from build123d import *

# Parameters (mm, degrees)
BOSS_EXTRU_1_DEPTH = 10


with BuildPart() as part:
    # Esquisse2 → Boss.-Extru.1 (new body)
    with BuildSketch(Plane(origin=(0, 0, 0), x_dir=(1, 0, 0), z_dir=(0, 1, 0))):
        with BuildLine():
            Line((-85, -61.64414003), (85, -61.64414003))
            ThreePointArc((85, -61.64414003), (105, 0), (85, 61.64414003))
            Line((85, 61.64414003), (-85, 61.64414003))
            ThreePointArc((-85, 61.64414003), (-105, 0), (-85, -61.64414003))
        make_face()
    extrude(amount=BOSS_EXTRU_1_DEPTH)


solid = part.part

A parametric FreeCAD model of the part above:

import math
import FreeCAD as App
import Part
import Sketcher

V = App.Vector

doc = App.newDocument("Part")
body = doc.addObject("PartDesign::Body", "Body")

# Sketch on XZ plane
sketch1 = body.newObject("Sketcher::SketchObject", "Sketch")
sketch1.AttachmentSupport = (doc.getObject("XZ_Plane"), [""])
sketch1.MapMode = "FlatFace"
sketch1.addGeometry(Part.LineSegment(V(-85, 62, 0), V(85, 62, 0)), False)
sketch1.addGeometry(Part.ArcOfCircle(Part.Circle(V(0, 0, 0), V(0, 0, 1), 105), math.radians(-36), math.radians(36)), False)
sketch1.addGeometry(Part.LineSegment(V(85, -62, 0), V(-85, -62, 0)), False)
sketch1.addGeometry(Part.ArcOfCircle(Part.Circle(V(0, 0, 0), V(0, 0, 1), 105), math.radians(144), math.radians(216)), False)
sketch1.addConstraint(Sketcher.Constraint("Coincident", 0, 2, 1, 2))
sketch1.addConstraint(Sketcher.Constraint("Coincident", 1, 1, 2, 1))
sketch1.addConstraint(Sketcher.Constraint("Coincident", 2, 2, 3, 2))
sketch1.addConstraint(Sketcher.Constraint("Coincident", 3, 1, 0, 1))
sketch1.addConstraint(Sketcher.Constraint("Horizontal", 0))
sketch1.addConstraint(Sketcher.Constraint("Horizontal", 2))
sketch1.addConstraint(Sketcher.Constraint("Coincident", 1, 3, -1, 1))
sketch1.addConstraint(Sketcher.Constraint("Coincident", 3, 3, -1, 1))
sketch1.addConstraint(Sketcher.Constraint("Equal", 1, 3))
sketch1.addConstraint(Sketcher.Constraint("Vertical", 0, 2, 1, 1))
sketch1.addConstraint(Sketcher.Constraint("Radius", 1, 105.0))
sketch1.addConstraint(Sketcher.Constraint("DistanceX", 0, 1, 0, 2, 170.0))
pad1 = body.newObject("PartDesign::Pad", "Pad")
pad1.Profile = sketch1
pad1.Length = 10
pad1.Reversed = True

doc.recompute()
